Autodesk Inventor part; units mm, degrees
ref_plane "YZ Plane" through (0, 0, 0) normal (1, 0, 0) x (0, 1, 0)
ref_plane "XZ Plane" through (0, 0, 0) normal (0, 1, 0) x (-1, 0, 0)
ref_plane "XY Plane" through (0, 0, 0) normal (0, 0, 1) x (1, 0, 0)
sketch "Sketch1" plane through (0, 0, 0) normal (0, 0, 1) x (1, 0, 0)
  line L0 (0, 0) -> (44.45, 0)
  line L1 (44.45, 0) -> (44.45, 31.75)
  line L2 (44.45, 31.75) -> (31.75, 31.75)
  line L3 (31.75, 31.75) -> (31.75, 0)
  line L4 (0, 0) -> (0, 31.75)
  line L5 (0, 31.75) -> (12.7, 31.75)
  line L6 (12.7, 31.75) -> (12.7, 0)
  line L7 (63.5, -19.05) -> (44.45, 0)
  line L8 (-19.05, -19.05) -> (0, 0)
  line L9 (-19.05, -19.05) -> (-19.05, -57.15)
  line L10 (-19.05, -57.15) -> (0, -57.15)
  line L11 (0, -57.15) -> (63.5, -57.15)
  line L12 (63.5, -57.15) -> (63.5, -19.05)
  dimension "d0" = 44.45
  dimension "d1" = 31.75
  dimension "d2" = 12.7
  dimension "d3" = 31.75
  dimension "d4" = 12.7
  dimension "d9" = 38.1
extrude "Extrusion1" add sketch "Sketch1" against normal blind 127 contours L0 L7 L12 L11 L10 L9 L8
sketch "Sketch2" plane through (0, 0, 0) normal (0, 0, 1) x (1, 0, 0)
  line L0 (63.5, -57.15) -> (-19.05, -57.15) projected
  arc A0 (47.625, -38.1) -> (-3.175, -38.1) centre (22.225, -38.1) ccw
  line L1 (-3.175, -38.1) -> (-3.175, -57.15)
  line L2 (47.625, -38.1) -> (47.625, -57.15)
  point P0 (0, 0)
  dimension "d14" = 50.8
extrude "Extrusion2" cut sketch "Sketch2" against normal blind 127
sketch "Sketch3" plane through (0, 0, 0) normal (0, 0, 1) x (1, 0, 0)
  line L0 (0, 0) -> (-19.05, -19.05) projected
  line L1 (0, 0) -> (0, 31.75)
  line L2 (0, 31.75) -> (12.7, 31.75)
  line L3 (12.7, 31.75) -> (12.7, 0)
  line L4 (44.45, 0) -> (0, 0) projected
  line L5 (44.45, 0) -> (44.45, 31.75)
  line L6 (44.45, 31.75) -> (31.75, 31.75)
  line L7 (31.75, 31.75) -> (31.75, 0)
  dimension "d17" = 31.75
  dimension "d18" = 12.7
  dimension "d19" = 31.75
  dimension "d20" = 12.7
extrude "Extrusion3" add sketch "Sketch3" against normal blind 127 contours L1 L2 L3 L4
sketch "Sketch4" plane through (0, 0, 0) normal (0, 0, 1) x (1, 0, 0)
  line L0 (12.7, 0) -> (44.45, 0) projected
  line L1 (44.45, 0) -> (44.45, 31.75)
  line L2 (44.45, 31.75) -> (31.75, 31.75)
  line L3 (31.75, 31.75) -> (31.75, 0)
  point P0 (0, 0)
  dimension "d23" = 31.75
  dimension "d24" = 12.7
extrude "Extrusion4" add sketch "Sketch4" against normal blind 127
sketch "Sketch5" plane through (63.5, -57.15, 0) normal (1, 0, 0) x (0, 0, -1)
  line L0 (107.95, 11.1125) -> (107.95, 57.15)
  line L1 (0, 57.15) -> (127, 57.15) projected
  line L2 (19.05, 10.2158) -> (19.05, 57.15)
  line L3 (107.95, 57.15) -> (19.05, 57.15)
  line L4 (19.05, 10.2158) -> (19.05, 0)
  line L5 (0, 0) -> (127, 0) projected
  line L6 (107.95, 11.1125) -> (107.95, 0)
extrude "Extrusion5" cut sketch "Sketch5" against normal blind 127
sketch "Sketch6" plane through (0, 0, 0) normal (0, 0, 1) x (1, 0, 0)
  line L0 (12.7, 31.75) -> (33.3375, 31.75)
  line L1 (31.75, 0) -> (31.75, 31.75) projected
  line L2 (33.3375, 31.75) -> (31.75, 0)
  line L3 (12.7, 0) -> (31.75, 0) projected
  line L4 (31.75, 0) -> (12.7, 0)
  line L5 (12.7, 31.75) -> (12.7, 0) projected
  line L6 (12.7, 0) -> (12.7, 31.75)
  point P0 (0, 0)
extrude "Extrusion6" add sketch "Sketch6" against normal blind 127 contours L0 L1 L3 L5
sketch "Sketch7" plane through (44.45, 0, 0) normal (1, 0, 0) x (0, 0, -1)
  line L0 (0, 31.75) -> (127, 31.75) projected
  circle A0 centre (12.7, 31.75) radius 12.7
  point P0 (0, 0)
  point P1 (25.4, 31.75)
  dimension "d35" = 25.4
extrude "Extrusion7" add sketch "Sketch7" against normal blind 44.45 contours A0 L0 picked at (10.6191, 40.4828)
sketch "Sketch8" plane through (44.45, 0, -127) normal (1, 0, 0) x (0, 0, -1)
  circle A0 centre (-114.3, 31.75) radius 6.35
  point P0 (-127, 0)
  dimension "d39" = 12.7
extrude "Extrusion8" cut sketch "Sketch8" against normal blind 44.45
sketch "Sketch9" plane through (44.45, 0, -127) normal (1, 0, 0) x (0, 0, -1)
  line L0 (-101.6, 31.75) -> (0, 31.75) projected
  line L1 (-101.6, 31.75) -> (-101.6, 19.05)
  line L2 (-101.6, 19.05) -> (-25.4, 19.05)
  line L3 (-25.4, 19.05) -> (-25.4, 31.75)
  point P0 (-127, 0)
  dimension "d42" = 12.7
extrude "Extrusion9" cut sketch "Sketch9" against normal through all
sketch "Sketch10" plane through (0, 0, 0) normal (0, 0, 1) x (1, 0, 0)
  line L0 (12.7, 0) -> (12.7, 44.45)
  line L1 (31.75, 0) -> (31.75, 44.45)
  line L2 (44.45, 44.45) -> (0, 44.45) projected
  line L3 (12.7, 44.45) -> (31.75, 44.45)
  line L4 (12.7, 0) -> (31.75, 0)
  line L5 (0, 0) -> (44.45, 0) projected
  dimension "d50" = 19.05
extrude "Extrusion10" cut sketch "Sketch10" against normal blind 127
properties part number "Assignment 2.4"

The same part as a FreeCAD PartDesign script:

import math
import FreeCAD as App
import Part
import Sketcher
Q = App.Units.Quantity


def add_polygon(sketch, points):
    """Adds a closed chain of lines whose ends are joined by coincident constraints."""
    first, n = sketch.GeometryCount, len(points)
    for a, b in zip(points, points[1:] + points[:1]):
        sketch.addGeometry(Part.LineSegment(App.Vector(*a, 0), App.Vector(*b, 0)), False)
    for i in range(n):
        sketch.addConstraint(Sketcher.Constraint("Coincident", first + i, 2, first + (i + 1) % n, 1))

doc = App.newDocument("Part")
body = doc.addObject("PartDesign::Body", "Body")

sketch1 = doc.addObject("Sketcher::SketchObject", "Sketch")
body.addObject(sketch1)
sketch1.AttachmentSupport = (doc.XY_Plane, [""])
sketch1.MapMode = "FlatFace"
add_polygon(sketch1, [(44, 0), (0, 0), (-19, -19), (-19, -57), (64, -57), (64, -19)])
sketch1.addConstraint(Sketcher.Constraint("Horizontal", 0))
sketch1.addConstraint(Sketcher.Constraint("Vertical", 2))
sketch1.addConstraint(Sketcher.Constraint("Horizontal", 3))
sketch1.addConstraint(Sketcher.Constraint("Vertical", 4))
sketch1.addConstraint(Sketcher.Constraint("Coincident", 0, 2, -1, 1))
sketch1.addConstraint(Sketcher.Constraint("Perpendicular", 1, 5))
sketch1.addConstraint(Sketcher.Constraint("Horizontal", 1, 2, 4, 2))
sketch1.addConstraint(Sketcher.Constraint("Equal", 1, 5))
sketch1.addConstraint(Sketcher.Constraint("DistanceY", 2, 2, 2, 1, Q("1.5 in")))
sketch1.addConstraint(Sketcher.Constraint("DistanceX", 0, 2, 0, 1, Q("1.75 in")))
sketch1.addConstraint(Sketcher.Constraint("DistanceX", 3, 1, 3, 2, Q("3.25 in")))
pad1 = doc.addObject("PartDesign::Pad", "Pad")
body.addObject(pad1)
pad1.Profile = sketch1
pad1.Length = Q("5 in")
pad1.Reversed = True

sketch2 = doc.addObject("Sketcher::SketchObject", "Sketch001")
body.addObject(sketch2)
sketch2.AttachmentSupport = (doc.XY_Plane, [""])
sketch2.MapMode = "FlatFace"
sketch2.addGeometry(Part.LineSegment(App.Vector(-3, -57, 0), App.Vector(48, -57, 0)), False)
sketch2.addGeometry(Part.LineSegment(App.Vector(48, -57, 0), App.Vector(48, -38, 0)), False)
sketch2.addGeometry(Part.ArcOfCircle(Part.Circle(App.Vector(22, -38, 0), App.Vector(0, 0, 1), 25), math.radians(0), math.radians(180)), False)
sketch2.addGeometry(Part.LineSegment(App.Vector(-3, -38, 0), App.Vector(-3, -57, 0)), False)
sketch2.addConstraint(Sketcher.Constraint("Coincident", 0, 2, 1, 1))
sketch2.addConstraint(Sketcher.Constraint("Tangent", 1, 2, 2, 1))
sketch2.addConstraint(Sketcher.Constraint("Tangent", 2, 2, 3, 1))
sketch2.addConstraint(Sketcher.Constraint("Coincident", 3, 2, 0, 1))
sketch2.addConstraint(Sketcher.Constraint("Horizontal", 0))
sketch2.addConstraint(Sketcher.Constraint("Vertical", 1))
sketch2.addConstraint(Sketcher.Constraint("Vertical", 3))
sketch2.addConstraint(Sketcher.Constraint("Radius", 2, Q("1 in")))
sketch2.addConstraint(Sketcher.Constraint("DistanceY", 1, 1, 1, 2, Q("0.75 in")))
sketch2.addConstraint(Sketcher.Constraint("DistanceY", 2, 3, -1, 1, Q("1.5 in")))
sketch2.addConstraint(Sketcher.Constraint("DistanceX", -1, 1, 2, 3, Q("0.875 in")))
pocket1 = doc.addObject("PartDesign::Pocket", "Pocket")
body.addObject(pocket1)
pocket1.Profile = sketch2
pocket1.Length = Q("5 in")

sketch3 = doc.addObject("Sketcher::SketchObject", "Sketch002")
body.addObject(sketch3)
sketch3.AttachmentSupport = (doc.XY_Plane, [""])
sketch3.MapMode = "FlatFace"
add_polygon(sketch3, [(0, 32), (0, 0), (13, 0), (13, 32)])
sketch3.addConstraint(Sketcher.Constraint("Vertical", 0))
sketch3.addConstraint(Sketcher.Constraint("Horizontal", 1))
sketch3.addConstraint(Sketcher.Constraint("Vertical", 2))
sketch3.addConstraint(Sketcher.Constraint("Horizontal", 3))
sketch3.addConstraint(Sketcher.Constraint("Coincident", 0, 2, -1, 1))
sketch3.addConstraint(Sketcher.Constraint("DistanceX", 1, 1, 1, 2, Q("0.5 in")))
sketch3.addConstraint(Sketcher.Constraint("DistanceY", 0, 2, 0, 1, Q("1.25 in")))
pad2 = doc.addObject("PartDesign::Pad", "Pad001")
body.addObject(pad2)
pad2.Profile = sketch3
pad2.Length = Q("5 in")
pad2.Reversed = True

sketch4 = doc.addObject("Sketcher::SketchObject", "Sketch003")
body.addObject(sketch4)
sketch4.AttachmentSupport = (doc.XY_Plane, [""])
sketch4.MapMode = "FlatFace"
add_polygon(sketch4, [(32, 32), (32, 0), (44, 0), (44, 32)])
sketch4.addConstraint(Sketcher.Constraint("Vertical", 0))
sketch4.addConstraint(Sketcher.Constraint("Horizontal", 1))
sketch4.addConstraint(Sketcher.Constraint("Vertical", 2))
sketch4.addConstraint(Sketcher.Constraint("Horizontal", 3))
sketch4.addConstraint(Sketcher.Constraint("PointOnObject", 0, 2, -1))
sketch4.addConstraint(Sketcher.Constraint("DistanceX", 1, 1, 1, 2, Q("0.5 in")))
sketch4.addConstraint(Sketcher.Constraint("DistanceY", 0, 2, 0, 1, Q("1.25 in")))
sketch4.addConstraint(Sketcher.Constraint("DistanceX", -1, 1, 0, 2, Q("1.25 in")))
pad3 = doc.addObject("PartDesign::Pad", "Pad002")
body.addObject(pad3)
pad3.Profile = sketch4
pad3.Length = Q("5 in")
pad3.Reversed = True

sketch5 = doc.addObject("Sketcher::SketchObject", "Sketch004")
body.addObject(sketch5)
sketch5.AttachmentSupport = (doc.YZ_Plane, [""])
sketch5.MapMode = "FlatFace"
sketch5.AttachmentOffset = App.Placement(App.Vector(0, 0, 2.5 * 25.4), App.Rotation())
add_polygon(sketch5, [(-57, -108), (0, -108), (0, -19), (-57, -19)])
sketch5.addConstraint(Sketcher.Constraint("Horizontal", 0))
sketch5.addConstraint(Sketcher.Constraint("Vertical", 1))
sketch5.addConstraint(Sketcher.Constraint("Horizontal", 2))
sketch5.addConstraint(Sketcher.Constraint("Vertical", 3))
sketch5.addConstraint(Sketcher.Constraint("PointOnObject", 0, 2, -2))
sketch5.addConstraint(Sketcher.Constraint("DistanceY", 1, 1, 1, 2, Q("3.5 in")))
sketch5.addConstraint(Sketcher.Constraint("DistanceX", 0, 1, 0, 2, Q("2.25 in")))
sketch5.addConstraint(Sketcher.Constraint("DistanceY", 0, 2, -1, 1, Q("4.25 in")))
pocket2 = doc.addObject("PartDesign::Pocket", "Pocket001")
body.addObject(pocket2)
pocket2.Profile = sketch5
pocket2.Length = Q("5 in")

sketch6 = doc.addObject("Sketcher::SketchObject", "Sketch005")
body.addObject(sketch6)
sketch6.AttachmentSupport = (doc.XY_Plane, [""])
sketch6.MapMode = "FlatFace"
add_polygon(sketch6, [(32, 32), (13, 32), (13, 0), (32, 0)])
sketch6.addConstraint(Sketcher.Constraint("Horizontal", 0))
sketch6.addConstraint(Sketcher.Constraint("Vertical", 1))
sketch6.addConstraint(Sketcher.Constraint("Horizontal", 2))
sketch6.addConstraint(Sketcher.Constraint("Vertical", 3))
sketch6.addConstraint(Sketcher.Constraint("PointOnObject", 1, 2, -1))
sketch6.addConstraint(Sketcher.Constraint("DistanceX", 0, 2, 0, 1, Q("0.75 in")))
sketch6.addConstraint(Sketcher.Constraint("DistanceY", 1, 2, 1, 1, Q("1.25 in")))
sketch6.addConstraint(Sketcher.Constraint("DistanceX", -1, 1, 0, 2, Q("0.5 in")))
pad4 = doc.addObject("PartDesign::Pad", "Pad003")
body.addObject(pad4)
pad4.Profile = sketch6
pad4.Length = Q("5 in")
pad4.Reversed = True

sketch7 = doc.addObject("Sketcher::SketchObject", "Sketch006")
body.addObject(sketch7)
sketch7.AttachmentSupport = (doc.YZ_Plane, [""])
sketch7.MapMode = "FlatFace"
sketch7.AttachmentOffset = App.Placement(App.Vector(0, 0, 1.75 * 25.4), App.Rotation())
sketch7.addGeometry(Part.ArcOfCircle(Part.Circle(App.Vector(32, -13, 0), App.Vector(0, 0, 1), 13), math.radians(-90), math.radians(90)), False)
sketch7.addGeometry(Part.LineSegment(App.Vector(32, 0, 0), App.Vector(32, -25, 0)), False)
sketch7.addConstraint(Sketcher.Constraint("Coincident", 0, 1, 1, 2))
sketch7.addConstraint(Sketcher.Constraint("Coincident", 1, 1, 0, 2))
sketch7.addConstraint(Sketcher.Constraint("Vertical", 1))
sketch7.addConstraint(Sketcher.Constraint("PointOnObject", 1, 1, -1))
sketch7.addConstraint(Sketcher.Constraint("Radius", 0, Q("0.5 in")))
sketch7.addConstraint(Sketcher.Constraint("DistanceX", -1, 1, 0, 3, Q("1.25 in")))
sketch7.addConstraint(Sketcher.Constraint("DistanceX", -1, 1, 0, 1, Q("1.25 in")))
pad5 = doc.addObject("PartDesign::Pad", "Pad004")
body.addObject(pad5)
pad5.Profile = sketch7
pad5.Length = Q("1.75 in")
pad5.Reversed = True

sketch8 = doc.addObject("Sketcher::SketchObject", "Sketch007")
body.addObject(sketch8)
sketch8.AttachmentSupport = (doc.YZ_Plane, [""])
sketch8.MapMode = "FlatFace"
sketch8.AttachmentOffset = App.Placement(App.Vector(0, 0, 1.75 * 25.4), App.Rotation())
sketch8.addGeometry(Part.Circle(App.Vector(32, -13, 0), App.Vector(0, 0, 1), 6), False)
sketch8.addConstraint(Sketcher.Constraint("Diameter", 0, Q("0.5 in")))
sketch8.addConstraint(Sketcher.Constraint("DistanceY", 0, 3, -1, 1, Q("0.5 in")))
sketch8.addConstraint(Sketcher.Constraint("DistanceX", -1, 1, 0, 3, Q("1.25 in")))
pocket3 = doc.addObject("PartDesign::Pocket", "Pocket002")
body.addObject(pocket3)
pocket3.Profile = sketch8
pocket3.Length = Q("1.75 in")

sketch9 = doc.addObject("Sketcher::SketchObject", "Sketch008")
body.addObject(sketch9)
sketch9.AttachmentSupport = (doc.YZ_Plane, [""])
sketch9.MapMode = "FlatFace"
sketch9.AttachmentOffset = App.Placement(App.Vector(0, 0, 1.75 * 25.4), App.Rotation())
add_polygon(sketch9, [(32, -102), (32, -25), (19, -25), (19, -102)])
sketch9.addConstraint(Sketcher.Constraint("Vertical", 0))
sketch9.addConstraint(Sketcher.Constraint("Horizontal", 1))
sketch9.addConstraint(Sketcher.Constraint("Vertical", 2))
sketch9.addConstraint(Sketcher.Constraint("Horizontal", 3))
sketch9.addConstraint(Sketcher.Constraint("DistanceX", 1, 2, 1, 1, Q("0.5 in")))
sketch9.addConstraint(Sketcher.Constraint("DistanceY", 0, 1, 0, 2, Q("3 in")))
sketch9.addConstraint(Sketcher.Constraint("DistanceY", 0, 2, -1, 1, Q("1 in")))
sketch9.addConstraint(Sketcher.Constraint("DistanceX", -1, 1, 0, 2, Q("1.25 in")))
pocket4 = doc.addObject("PartDesign::Pocket", "Pocket003")
body.addObject(pocket4)
pocket4.Profile = sketch9
pocket4.Type = "ThroughAll"

sketch10 = doc.addObject("Sketcher::SketchObject", "Sketch009")
body.addObject(sketch10)
sketch10.AttachmentSupport = (doc.XY_Plane, [""])
sketch10.MapMode = "FlatFace"
add_polygon(sketch10, [(13, 44), (13, 0), (32, 0), (32, 44)])
sketch10.addConstraint(Sketcher.Constraint("Vertical", 0))
sketch10.addConstraint(Sketcher.Constraint("Horizontal", 1))
sketch10.addConstraint(Sketcher.Constraint("Vertical", 2))
sketch10.addConstraint(Sketcher.Constraint("Horizontal", 3))
sketch10.addConstraint(Sketcher.Constraint("PointOnObject", 0, 2, -1))
sketch10.addConstraint(Sketcher.Constraint("DistanceX", 1, 1, 1, 2, Q("0.75 in")))
sketch10.addConstraint(Sketcher.Constraint("DistanceY", 0, 2, 0, 1, Q("1.75 in")))
sketch10.addConstraint(Sketcher.Constraint("DistanceX", -1, 1, 0, 2, Q("0.5 in")))
pocket5 = doc.addObject("PartDesign::Pocket", "Pocket004")
body.addObject(pocket5)
pocket5.Profile = sketch10
pocket5.Length = Q("5 in")

doc.recompute()
